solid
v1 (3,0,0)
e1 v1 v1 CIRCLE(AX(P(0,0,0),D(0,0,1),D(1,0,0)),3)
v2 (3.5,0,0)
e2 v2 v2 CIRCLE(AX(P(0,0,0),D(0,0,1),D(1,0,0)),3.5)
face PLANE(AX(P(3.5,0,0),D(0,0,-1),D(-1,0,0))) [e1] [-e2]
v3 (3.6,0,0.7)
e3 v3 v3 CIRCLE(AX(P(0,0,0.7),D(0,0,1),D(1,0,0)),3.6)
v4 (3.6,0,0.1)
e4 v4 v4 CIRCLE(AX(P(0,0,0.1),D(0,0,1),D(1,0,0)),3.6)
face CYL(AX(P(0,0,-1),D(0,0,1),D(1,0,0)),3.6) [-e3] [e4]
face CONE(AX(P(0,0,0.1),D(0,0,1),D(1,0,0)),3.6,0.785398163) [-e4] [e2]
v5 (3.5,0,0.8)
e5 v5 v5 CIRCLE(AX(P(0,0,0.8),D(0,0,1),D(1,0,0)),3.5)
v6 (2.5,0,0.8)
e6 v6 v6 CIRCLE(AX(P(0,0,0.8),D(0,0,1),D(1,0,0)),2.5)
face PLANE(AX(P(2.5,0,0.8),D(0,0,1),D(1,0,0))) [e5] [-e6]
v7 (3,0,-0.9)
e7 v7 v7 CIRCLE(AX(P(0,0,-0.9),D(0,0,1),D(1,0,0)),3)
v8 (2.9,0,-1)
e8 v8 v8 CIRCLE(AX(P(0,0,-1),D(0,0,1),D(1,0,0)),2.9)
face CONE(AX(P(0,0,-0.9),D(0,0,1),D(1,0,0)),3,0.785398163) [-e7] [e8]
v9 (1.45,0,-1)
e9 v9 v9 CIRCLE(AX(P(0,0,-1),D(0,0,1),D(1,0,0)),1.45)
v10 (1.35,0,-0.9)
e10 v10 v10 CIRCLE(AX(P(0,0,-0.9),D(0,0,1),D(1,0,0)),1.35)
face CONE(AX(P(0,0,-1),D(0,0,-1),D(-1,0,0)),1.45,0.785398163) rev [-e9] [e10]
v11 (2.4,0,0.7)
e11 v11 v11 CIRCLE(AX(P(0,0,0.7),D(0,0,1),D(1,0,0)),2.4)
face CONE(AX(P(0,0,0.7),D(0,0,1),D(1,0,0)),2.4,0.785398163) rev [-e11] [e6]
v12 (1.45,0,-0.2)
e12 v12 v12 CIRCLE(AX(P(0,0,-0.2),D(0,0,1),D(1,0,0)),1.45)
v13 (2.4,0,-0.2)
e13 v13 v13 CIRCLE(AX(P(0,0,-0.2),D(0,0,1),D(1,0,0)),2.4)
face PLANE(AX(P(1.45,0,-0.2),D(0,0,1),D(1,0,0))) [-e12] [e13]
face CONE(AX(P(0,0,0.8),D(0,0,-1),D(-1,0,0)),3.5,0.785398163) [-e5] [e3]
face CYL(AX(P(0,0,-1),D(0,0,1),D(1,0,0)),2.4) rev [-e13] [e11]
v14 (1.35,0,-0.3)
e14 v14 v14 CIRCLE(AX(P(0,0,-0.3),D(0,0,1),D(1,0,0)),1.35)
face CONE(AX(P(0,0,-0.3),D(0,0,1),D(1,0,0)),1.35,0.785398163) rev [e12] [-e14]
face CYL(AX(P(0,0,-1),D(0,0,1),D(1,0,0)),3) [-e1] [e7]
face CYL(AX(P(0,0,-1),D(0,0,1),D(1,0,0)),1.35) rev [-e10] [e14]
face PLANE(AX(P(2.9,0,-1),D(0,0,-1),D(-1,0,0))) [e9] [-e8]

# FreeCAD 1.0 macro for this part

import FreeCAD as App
import Part
import Sketcher

doc = App.newDocument("Part")
body = doc.addObject("PartDesign::Body", "Body")

# Sketch on XZ plane
sketch1 = body.newObject("Sketcher::SketchObject", "Sketch")
sketch1.AttachmentSupport = (doc.getObject("XZ_Plane"), [""])
sketch1.MapMode = "FlatFace"
sketch1.addGeometry([
    Part.LineSegment(App.Vector(2.5, 0.8, 0), App.Vector(3.5, 0.8, 0)),  # 0
    Part.LineSegment(App.Vector(3.5, 0.8, 0), App.Vector(3.6, 0.7, 0)),  # 1
    Part.LineSegment(App.Vector(3.6, 0.7, 0), App.Vector(3.6, 0.1, 0)),  # 2
    Part.LineSegment(App.Vector(3.6, 0.1, 0), App.Vector(3.5, 0, 0)),  # 3
    Part.LineSegment(App.Vector(3.5, 0, 0), App.Vector(3, 0, 0)),  # 4
    Part.LineSegment(App.Vector(3, 0, 0), App.Vector(3, -0.9, 0)),  # 5
    Part.LineSegment(App.Vector(3, -0.9, 0), App.Vector(2.9, -1, 0)),  # 6
    Part.LineSegment(App.Vector(2.9, -1, 0), App.Vector(1.45, -1, 0)),  # 7
    Part.LineSegment(App.Vector(1.45, -1, 0), App.Vector(1.35, -0.9, 0)),  # 8
    Part.LineSegment(App.Vector(1.35, -0.9, 0), App.Vector(1.35, -0.3, 0)),  # 9
    Part.LineSegment(App.Vector(1.35, -0.3, 0), App.Vector(1.45, -0.2, 0)),  # 10
    Part.LineSegment(App.Vector(1.45, -0.2, 0), App.Vector(2.4, -0.2, 0)),  # 11
    Part.LineSegment(App.Vector(2.4, -0.2, 0), App.Vector(2.4, 0.7, 0)),  # 12
    Part.LineSegment(App.Vector(2.4, 0.7, 0), App.Vector(2.5, 0.8, 0)),  # 13
], False)
sketch1.addConstraint([
    Sketcher.Constraint("Coincident", 0, 2, 1, 1),
    Sketcher.Constraint("Coincident", 1, 2, 2, 1),
    Sketcher.Constraint("Coincident", 2, 2, 3, 1),
    Sketcher.Constraint("Coincident", 3, 2, 4, 1),
    Sketcher.Constraint("Coincident", 4, 2, 5, 1),
    Sketcher.Constraint("Coincident", 5, 2, 6, 1),
    Sketcher.Constraint("Coincident", 6, 2, 7, 1),
    Sketcher.Constraint("Coincident", 7, 2, 8, 1),
    Sketcher.Constraint("Coincident", 8, 2, 9, 1),
    Sketcher.Constraint("Coincident", 9, 2, 10, 1),
    Sketcher.Constraint("Coincident", 10, 2, 11, 1),
    Sketcher.Constraint("Coincident", 11, 2, 12, 1),
    Sketcher.Constraint("Coincident", 12, 2, 13, 1),
    Sketcher.Constraint("Coincident", 13, 2, 0, 1),
    Sketcher.Constraint("Horizontal", 0),
    Sketcher.Constraint("Vertical", 2),
    Sketcher.Constraint("Horizontal", 4),
    Sketcher.Constraint("Vertical", 5),
    Sketcher.Constraint("Horizontal", 7),
    Sketcher.Constraint("Vertical", 9),
    Sketcher.Constraint("Horizontal", 11),
    Sketcher.Constraint("Vertical", 12),
    Sketcher.Constraint("PointOnObject", 3, 2, -1),
    Sketcher.Constraint("Perpendicular", 1, 3),
    Sketcher.Constraint("Parallel", 3, 6),
    Sketcher.Constraint("Perpendicular", 6, 8),
    Sketcher.Constraint("Perpendicular", 8, 10),
    Sketcher.Constraint("Parallel", 10, 13),
    Sketcher.Constraint("Horizontal", 5, 2, 8, 2),
    Sketcher.Constraint("Horizontal", 1, 2, 12, 2),
    Sketcher.Constraint("Vertical", 0, 2, 3, 2),
    Sketcher.Constraint("Vertical", 7, 2, 10, 2),
    Sketcher.Constraint("Equal", 2, 9),
    Sketcher.Constraint("Equal", 5, 12),
    Sketcher.Constraint("Equal", 1, 3),
    Sketcher.Constraint("DistanceX", 0, 1, 0, 2, 1.0),
    Sketcher.Constraint("DistanceX", 4, 2, 4, 1, 0.5),
    Sketcher.Constraint("DistanceY", 2, 2, 2, 1, 0.6),
    Sketcher.Constraint("DistanceY", 5, 2, 5, 1, 0.9),
    Sketcher.Constraint("DistanceX", -1, 1, 4, 2, 3.0),
    Sketcher.Constraint("DistanceY", 6, 2, -1, 1, 1.0),
    Sketcher.Constraint("DistanceX", 7, 2, 7, 1, 1.45),
])
revolution = body.newObject("PartDesign::Revolution", "Revolution")
revolution.Profile = sketch1
revolution.ReferenceAxis = (sketch1, ["V_Axis"])
revolution.Angle = 360

doc.recompute()
